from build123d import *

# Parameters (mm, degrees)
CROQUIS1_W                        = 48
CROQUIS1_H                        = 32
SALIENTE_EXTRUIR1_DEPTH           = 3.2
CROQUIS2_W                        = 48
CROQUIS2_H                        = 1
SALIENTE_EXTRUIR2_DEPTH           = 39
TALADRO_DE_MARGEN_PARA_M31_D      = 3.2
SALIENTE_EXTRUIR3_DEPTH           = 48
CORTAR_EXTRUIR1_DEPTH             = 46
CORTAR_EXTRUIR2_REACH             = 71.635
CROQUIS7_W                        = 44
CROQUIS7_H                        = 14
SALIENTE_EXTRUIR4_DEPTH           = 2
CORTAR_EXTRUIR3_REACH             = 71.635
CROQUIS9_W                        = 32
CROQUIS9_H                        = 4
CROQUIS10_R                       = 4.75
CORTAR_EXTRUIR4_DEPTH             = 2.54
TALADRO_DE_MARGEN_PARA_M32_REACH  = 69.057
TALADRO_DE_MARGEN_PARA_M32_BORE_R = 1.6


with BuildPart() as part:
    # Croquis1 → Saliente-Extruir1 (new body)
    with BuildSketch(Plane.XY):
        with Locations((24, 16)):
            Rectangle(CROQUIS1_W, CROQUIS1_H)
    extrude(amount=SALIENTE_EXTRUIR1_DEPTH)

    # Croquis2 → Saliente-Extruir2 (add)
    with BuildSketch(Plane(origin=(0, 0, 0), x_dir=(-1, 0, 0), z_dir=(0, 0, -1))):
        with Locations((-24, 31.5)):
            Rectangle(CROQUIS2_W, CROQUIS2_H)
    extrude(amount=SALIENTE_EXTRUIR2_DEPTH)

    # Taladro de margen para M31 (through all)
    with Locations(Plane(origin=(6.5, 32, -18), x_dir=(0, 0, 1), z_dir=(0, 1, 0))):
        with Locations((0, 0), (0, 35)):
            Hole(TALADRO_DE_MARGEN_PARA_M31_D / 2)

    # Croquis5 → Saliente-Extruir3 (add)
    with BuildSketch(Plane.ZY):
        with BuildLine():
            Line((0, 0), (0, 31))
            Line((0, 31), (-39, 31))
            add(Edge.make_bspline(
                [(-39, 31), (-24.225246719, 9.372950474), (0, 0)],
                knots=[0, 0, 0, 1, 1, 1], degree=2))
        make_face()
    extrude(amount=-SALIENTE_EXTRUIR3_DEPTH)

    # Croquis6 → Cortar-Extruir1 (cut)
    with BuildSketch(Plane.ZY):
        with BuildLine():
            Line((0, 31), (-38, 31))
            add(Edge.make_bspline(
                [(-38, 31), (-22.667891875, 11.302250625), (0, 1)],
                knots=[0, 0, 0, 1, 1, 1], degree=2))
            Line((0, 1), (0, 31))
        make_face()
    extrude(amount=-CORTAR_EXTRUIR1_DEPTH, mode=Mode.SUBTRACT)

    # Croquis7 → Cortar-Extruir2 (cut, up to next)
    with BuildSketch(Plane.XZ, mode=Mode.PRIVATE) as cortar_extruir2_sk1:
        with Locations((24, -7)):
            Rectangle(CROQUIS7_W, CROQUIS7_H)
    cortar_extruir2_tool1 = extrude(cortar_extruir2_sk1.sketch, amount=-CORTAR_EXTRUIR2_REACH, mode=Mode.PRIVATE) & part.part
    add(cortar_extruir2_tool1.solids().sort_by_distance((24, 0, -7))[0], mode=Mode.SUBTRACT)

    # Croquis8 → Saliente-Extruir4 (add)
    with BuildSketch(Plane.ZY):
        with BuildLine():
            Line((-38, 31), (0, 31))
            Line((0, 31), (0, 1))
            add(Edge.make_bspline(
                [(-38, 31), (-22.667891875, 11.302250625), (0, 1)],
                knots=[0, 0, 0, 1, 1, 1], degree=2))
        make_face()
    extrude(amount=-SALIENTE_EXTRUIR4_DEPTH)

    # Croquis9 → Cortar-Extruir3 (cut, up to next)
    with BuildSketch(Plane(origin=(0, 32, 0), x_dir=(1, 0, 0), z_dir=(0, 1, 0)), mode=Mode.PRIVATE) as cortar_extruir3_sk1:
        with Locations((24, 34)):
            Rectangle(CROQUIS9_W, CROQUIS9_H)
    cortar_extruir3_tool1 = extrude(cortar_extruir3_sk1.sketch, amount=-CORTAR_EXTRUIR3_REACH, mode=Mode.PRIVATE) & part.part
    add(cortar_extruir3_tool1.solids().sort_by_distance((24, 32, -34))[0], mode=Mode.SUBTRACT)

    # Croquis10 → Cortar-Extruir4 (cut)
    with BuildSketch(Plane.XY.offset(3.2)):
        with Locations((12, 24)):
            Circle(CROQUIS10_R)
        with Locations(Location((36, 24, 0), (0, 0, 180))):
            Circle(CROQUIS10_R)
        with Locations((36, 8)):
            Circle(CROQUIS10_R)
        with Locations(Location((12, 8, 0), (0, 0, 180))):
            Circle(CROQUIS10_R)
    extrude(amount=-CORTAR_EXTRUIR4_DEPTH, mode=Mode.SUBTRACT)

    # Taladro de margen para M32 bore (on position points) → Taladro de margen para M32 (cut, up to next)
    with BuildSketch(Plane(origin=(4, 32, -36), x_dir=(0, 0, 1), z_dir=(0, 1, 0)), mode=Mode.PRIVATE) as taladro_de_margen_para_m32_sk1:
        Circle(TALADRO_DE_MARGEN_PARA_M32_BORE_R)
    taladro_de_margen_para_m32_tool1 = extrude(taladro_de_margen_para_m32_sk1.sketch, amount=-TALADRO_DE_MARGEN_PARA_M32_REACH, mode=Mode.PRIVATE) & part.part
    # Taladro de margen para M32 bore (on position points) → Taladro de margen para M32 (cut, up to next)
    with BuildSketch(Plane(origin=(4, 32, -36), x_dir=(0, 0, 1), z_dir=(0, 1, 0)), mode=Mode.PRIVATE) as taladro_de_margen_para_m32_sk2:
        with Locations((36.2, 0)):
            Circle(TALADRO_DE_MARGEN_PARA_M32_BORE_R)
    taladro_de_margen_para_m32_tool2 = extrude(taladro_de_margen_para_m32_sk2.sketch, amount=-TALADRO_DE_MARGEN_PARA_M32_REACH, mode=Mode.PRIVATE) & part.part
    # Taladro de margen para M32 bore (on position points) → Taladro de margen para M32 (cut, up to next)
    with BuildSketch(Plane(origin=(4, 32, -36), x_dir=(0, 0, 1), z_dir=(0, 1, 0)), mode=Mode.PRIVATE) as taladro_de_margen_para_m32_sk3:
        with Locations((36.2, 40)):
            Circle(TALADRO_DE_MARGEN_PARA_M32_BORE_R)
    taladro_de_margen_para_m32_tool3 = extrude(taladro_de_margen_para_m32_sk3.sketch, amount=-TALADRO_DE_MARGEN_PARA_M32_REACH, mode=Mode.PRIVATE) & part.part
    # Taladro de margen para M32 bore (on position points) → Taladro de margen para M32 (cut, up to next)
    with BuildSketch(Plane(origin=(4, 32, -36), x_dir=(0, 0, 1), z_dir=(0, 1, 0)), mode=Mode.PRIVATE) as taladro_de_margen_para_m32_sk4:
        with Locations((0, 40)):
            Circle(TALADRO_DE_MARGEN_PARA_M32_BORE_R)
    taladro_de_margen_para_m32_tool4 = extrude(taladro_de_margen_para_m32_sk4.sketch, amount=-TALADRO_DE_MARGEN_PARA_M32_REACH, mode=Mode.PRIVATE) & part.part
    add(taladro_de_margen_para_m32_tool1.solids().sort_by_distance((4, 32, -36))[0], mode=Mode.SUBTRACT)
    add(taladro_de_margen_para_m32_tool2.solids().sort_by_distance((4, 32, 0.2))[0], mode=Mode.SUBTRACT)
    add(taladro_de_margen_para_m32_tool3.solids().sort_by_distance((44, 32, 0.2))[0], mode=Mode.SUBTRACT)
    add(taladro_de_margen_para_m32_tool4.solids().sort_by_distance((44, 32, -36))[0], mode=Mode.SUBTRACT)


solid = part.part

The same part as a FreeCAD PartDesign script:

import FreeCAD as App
import Part
import Sketcher
from FreeCAD import Vector


def add_polygon(sketch, points):
    """Adds a closed chain of lines whose ends are joined by coincident constraints."""
    first, n = sketch.GeometryCount, len(points)
    for a, b in zip(points, points[1:] + points[:1]):
        sketch.addGeometry(Part.LineSegment(App.Vector(*a, 0), App.Vector(*b, 0)), False)
    for i in range(n):
        sketch.addConstraint(Sketcher.Constraint("Coincident", first + i, 2, first + (i + 1) % n, 1))

doc = App.newDocument("Part")
params = doc.addObject("Spreadsheet::Sheet", "Params")
for row, (alias, value) in enumerate([
    ("sketch1_width", "48 mm"),
    ("sketch1_height", "32 mm"),
    ("pad1_length", "3.2 mm"),
    ("sketch2_width", "48 mm"),
    ("sketch2_height", "1 mm"),
    ("pad2_length", "39 mm"),
    ("sketch3_diameter", "3.2 mm"),
    ("hole_diameter", "3.2 mm"),
    ("pad3_length", "48 mm"),
    ("pocket1_length", "46 mm"),
    ("sketch6_width", "44 mm"),
    ("sketch6_height", "14 mm"),
    ("pocket2_length", "8.715684 mm"),
    ("pad4_length", "2 mm"),
    ("sketch8_width", "32 mm"),
    ("sketch8_height", "4 mm"),
    ("sketch9_diameter", "9.5 mm"),
    ("pocket4_length", "2.54 mm"),
    ("sketch10_diameter", "3.2 mm"),
    ("sketch11_diameter", "3.2 mm"),
    ("sketch12_diameter", "3.2 mm"),
    ("sketch13_diameter", "3.2 mm"),
], start=1):
    params.set(f"A{row}", alias)
    params.set(f"B{row}", "=" + value)
    params.setAlias(f"B{row}", alias)

body = doc.addObject("PartDesign::Body", "Body")

sketch1 = body.newObject("Sketcher::SketchObject", "Sketch")
sketch1.AttachmentSupport = (doc.getObject("XY_Plane"), [""])
sketch1.MapMode = "FlatFace"
add_polygon(sketch1, [(0, 32), (0, 0), (48, 0), (48, 32)])
sketch1.addConstraint(Sketcher.Constraint("Vertical", 0))
sketch1.addConstraint(Sketcher.Constraint("Horizontal", 1))
sketch1.addConstraint(Sketcher.Constraint("Vertical", 2))
sketch1.addConstraint(Sketcher.Constraint("Horizontal", 3))
sketch1.addConstraint(Sketcher.Constraint("Coincident", 0, 2, -1, 1))
sketch1.addConstraint(Sketcher.Constraint("DistanceX", 1, 1, 1, 2, 48.0))
sketch1.addConstraint(Sketcher.Constraint("DistanceY", 0, 2, 0, 1, 32.0))
sketch1.setExpression("Constraints[9]", "Params.sketch1_width")
sketch1.setExpression("Constraints[10]", "Params.sketch1_height")
pad1 = body.newObject("PartDesign::Pad", "Pad")
pad1.Profile = sketch1
pad1.setExpression("Length", "Params.pad1_length")

sketch2 = body.newObject("Sketcher::SketchObject", "Sketch001")
sketch2.AttachmentSupport = (doc.getObject("XY_Plane"), [""])
sketch2.MapMode = "FlatFace"
add_polygon(sketch2, [(48, 32), (48, 31), (0, 31), (0, 32)])
sketch2.addConstraint(Sketcher.Constraint("Vertical", 0))
sketch2.addConstraint(Sketcher.Constraint("Horizontal", 1))
sketch2.addConstraint(Sketcher.Constraint("Vertical", 2))
sketch2.addConstraint(Sketcher.Constraint("Horizontal", 3))
sketch2.addConstraint(Sketcher.Constraint("PointOnObject", 1, 2, -2))
sketch2.addConstraint(Sketcher.Constraint("DistanceX", 1, 2, 1, 1, 48.0))
sketch2.addConstraint(Sketcher.Constraint("DistanceY", 0, 2, 0, 1, 1.0))
sketch2.addConstraint(Sketcher.Constraint("DistanceY", -1, 1, 0, 2, 31.0))
sketch2.setExpression("Constraints[9]", "Params.sketch2_width")
sketch2.setExpression("Constraints[10]", "Params.sketch2_height")
pad2 = body.newObject("PartDesign::Pad", "Pad001")
pad2.Profile = sketch2
pad2.setExpression("Length", "Params.pad2_length")
pad2.Reversed = True

sketch3 = body.newObject("Sketcher::SketchObject", "Sketch002")
sketch3.AttachmentSupport = (doc.getObject("XZ_Plane"), [""])
sketch3.MapMode = "FlatFace"
sketch3.AttachmentOffset = App.Placement(Vector(0, 0, -32), App.Rotation())
sketch3.addGeometry(Part.Circle(Vector(6.5, -18, 0), Vector(0, 0, 1), 1.6), False)
sketch3.addGeometry(Part.Circle(Vector(41.5, -18, 0), Vector(0, 0, 1), 1.6), False)
sketch3.addConstraint(Sketcher.Constraint("Equal", 0, 1))
sketch3.addConstraint(Sketcher.Constraint("Horizontal", 0, 3, 1, 3))
sketch3.addConstraint(Sketcher.Constraint("Diameter", 0, 3.2))
sketch3.addConstraint(Sketcher.Constraint("DistanceY", 0, 3, -1, 1, 18.0))
sketch3.addConstraint(Sketcher.Constraint("DistanceX", 0, 3, 1, 3, 35.0))
sketch3.addConstraint(Sketcher.Constraint("DistanceX", -1, 1, 0, 3, 6.5))
sketch3.setExpression("Constraints[2]", "Params.sketch3_diameter")
doc.recompute()
hole = body.newObject("PartDesign::Hole", "Hole")
hole.Profile = sketch3
hole.ThreadType = "None"
hole.setExpression("Diameter", "Params.hole_diameter")
hole.DepthType = "ThroughAll"
hole.Reversed = True

sketch4 = body.newObject("Sketcher::SketchObject", "Sketch003")
sketch4.AttachmentSupport = (doc.getObject("YZ_Plane"), [""])
sketch4.MapMode = "FlatFace"
sketch4.addGeometry(Part.LineSegment(Vector(0, 0, 0), Vector(31, 0, 0)), False)
sketch4.addGeometry(Part.LineSegment(Vector(31, 0, 0), Vector(31, -39, 0)), False)
sketch4.addGeometry(Part.BSplineCurve([Vector(31, -39, 0), Vector(9.37295, -24.225247, 0), Vector(0, 0, 0)], [3, 3], [0, 1], False, 2, [1, 1, 1], False), False)
sketch4.addConstraint(Sketcher.Constraint("Block", 2))
sketch4.addConstraint(Sketcher.Constraint("Coincident", 0, 2, 1, 1))
sketch4.addConstraint(Sketcher.Constraint("Coincident", 1, 2, 2, 1))
sketch4.addConstraint(Sketcher.Constraint("Coincident", 2, 2, 0, 1))
sketch4.addConstraint(Sketcher.Constraint("Horizontal", 0))
sketch4.addConstraint(Sketcher.Constraint("Vertical", 1))
pad3 = body.newObject("PartDesign::Pad", "Pad002")
pad3.Profile = sketch4
pad3.setExpression("Length", "Params.pad3_length")

sketch5 = body.newObject("Sketcher::SketchObject", "Sketch004")
sketch5.AttachmentSupport = (doc.getObject("YZ_Plane"), [""])
sketch5.MapMode = "FlatFace"
sketch5.addGeometry(Part.LineSegment(Vector(31, 0, 0), Vector(31, -38, 0)), False)
sketch5.addGeometry(Part.BSplineCurve([Vector(31, -38, 0), Vector(11.302251, -22.667892, 0), Vector(1, 0, 0)], [3, 3], [0, 1], False, 2, [1, 1, 1], False), False)
sketch5.addGeometry(Part.LineSegment(Vector(1, 0, 0), Vector(31, 0, 0)), False)
sketch5.addConstraint(Sketcher.Constraint("Block", 1))
sketch5.addConstraint(Sketcher.Constraint("Coincident", 0, 2, 1, 1))
sketch5.addConstraint(Sketcher.Constraint("Coincident", 1, 2, 2, 1))
sketch5.addConstraint(Sketcher.Constraint("Coincident", 2, 2, 0, 1))
sketch5.addConstraint(Sketcher.Constraint("Vertical", 0))
sketch5.addConstraint(Sketcher.Constraint("Horizontal", 2))
pocket1 = body.newObject("PartDesign::Pocket", "Pocket")
pocket1.Profile = sketch5
pocket1.setExpression("Length", "Params.pocket1_length")
pocket1.Reversed = True

sketch6 = body.newObject("Sketcher::SketchObject", "Sketch005")
sketch6.AttachmentSupport = (doc.getObject("XZ_Plane"), [""])
sketch6.MapMode = "FlatFace"
add_polygon(sketch6, [(2, 0), (2, -14), (46, -14), (46, 0)])
sketch6.addConstraint(Sketcher.Constraint("Vertical", 0))
sketch6.addConstraint(Sketcher.Constraint("Horizontal", 1))
sketch6.addConstraint(Sketcher.Constraint("Vertical", 2))
sketch6.addConstraint(Sketcher.Constraint("Horizontal", 3))
sketch6.addConstraint(Sketcher.Constraint("PointOnObject", 2, 2, -1))
sketch6.addConstraint(Sketcher.Constraint("DistanceX", 1, 1, 1, 2, 44.0))
sketch6.addConstraint(Sketcher.Constraint("DistanceY", 0, 2, 0, 1, 14.0))
sketch6.addConstraint(Sketcher.Constraint("DistanceX", -1, 1, 0, 2, 2.0))
sketch6.setExpression("Constraints[9]", "Params.sketch6_width")
sketch6.setExpression("Constraints[10]", "Params.sketch6_height")
pocket2 = body.newObject("PartDesign::Pocket", "Pocket001")
pocket2.Profile = sketch6
pocket2.setExpression("Length", "Params.pocket2_length")

sketch7 = body.newObject("Sketcher::SketchObject", "Sketch006")
sketch7.AttachmentSupport = (doc.getObject("YZ_Plane"), [""])
sketch7.MapMode = "FlatFace"
sketch7.addGeometry(Part.LineSegment(Vector(31, 0, 0), Vector(31, -38, 0)), False)
sketch7.addGeometry(Part.BSplineCurve([Vector(31, -38, 0), Vector(11.302251, -22.667892, 0), Vector(1, 0, 0)], [3, 3], [0, 1], False, 2, [1, 1, 1], False), False)
sketch7.addGeometry(Part.LineSegment(Vector(1, 0, 0), Vector(31, 0, 0)), False)
sketch7.addConstraint(Sketcher.Constraint("Block", 1))
sketch7.addConstraint(Sketcher.Constraint("Coincident", 0, 2, 1, 1))
sketch7.addConstraint(Sketcher.Constraint("Coincident", 1, 2, 2, 1))
sketch7.addConstraint(Sketcher.Constraint("Coincident", 2, 2, 0, 1))
sketch7.addConstraint(Sketcher.Constraint("Vertical", 0))
sketch7.addConstraint(Sketcher.Constraint("Horizontal", 2))
pad4 = body.newObject("PartDesign::Pad", "Pad003")
pad4.Profile = sketch7
pad4.setExpression("Length", "Params.pad4_length")

sketch8 = body.newObject("Sketcher::SketchObject", "Sketch007")
sketch8.AttachmentSupport = (doc.getObject("XZ_Plane"), [""])
sketch8.MapMode = "FlatFace"
sketch8.AttachmentOffset = App.Placement(Vector(0, 0, -32), App.Rotation())
add_polygon(sketch8, [(8, -36), (8, -32), (40, -32), (40, -36)])
sketch8.addConstraint(Sketcher.Constraint("Vertical", 0))
sketch8.addConstraint(Sketcher.Constraint("Horizontal", 1))
sketch8.addConstraint(Sketcher.Constraint("Vertical", 2))
sketch8.addConstraint(Sketcher.Constraint("Horizontal", 3))
sketch8.addConstraint(Sketcher.Constraint("DistanceX", 1, 1, 1, 2, 32.0))
sketch8.addConstraint(Sketcher.Constraint("DistanceY", 0, 1, 0, 2, 4.0))
sketch8.addConstraint(Sketcher.Constraint("DistanceX", -1, 1, 0, 2, 8.0))
sketch8.addConstraint(Sketcher.Constraint("DistanceY", 0, 2, -1, 1, 32.0))
sketch8.setExpression("Constraints[8]", "Params.sketch8_width")
sketch8.setExpression("Constraints[9]", "Params.sketch8_height")
pocket3 = body.newObject("PartDesign::Pocket", "Pocket002")
pocket3.Profile = sketch8
pocket3.Type = "UpToFirst"
pocket3.Reversed = True

sketch9 = body.newObject("Sketcher::SketchObject", "Sketch008")
sketch9.AttachmentSupport = (doc.getObject("XY_Plane"), [""])
sketch9.MapMode = "FlatFace"
sketch9.AttachmentOffset = App.Placement(Vector(0, 0, 3.2), App.Rotation())
sketch9.addGeometry(Part.Circle(Vector(12, 24, 0), Vector(0, 0, 1), 4.8), False)
sketch9.addGeometry(Part.Circle(Vector(36, 24, 0), Vector(0, 0, 1), 4.8), False)
sketch9.addGeometry(Part.Circle(Vector(36, 8, 0), Vector(0, 0, 1), 4.8), False)
sketch9.addGeometry(Part.Circle(Vector(12, 8, 0), Vector(0, 0, 1), 4.8), False)
sketch9.addConstraint(Sketcher.Constraint("Equal", 0, 1))
sketch9.addConstraint(Sketcher.Constraint("Equal", 1, 2))
sketch9.addConstraint(Sketcher.Constraint("Equal", 2, 3))
sketch9.addConstraint(Sketcher.Constraint("Horizontal", 0, 3, 1, 3))
sketch9.addConstraint(Sketcher.Constraint("Horizontal", 2, 3, 3, 3))
sketch9.addConstraint(Sketcher.Constraint("Vertical", 1, 3, 2, 3))
sketch9.addConstraint(Sketcher.Constraint("Vertical", 0, 3, 3, 3))
sketch9.addConstraint(Sketcher.Constraint("Diameter", 0, 9.5))
sketch9.addConstraint(Sketcher.Constraint("DistanceX", -1, 1, 0, 3, 12.0))
sketch9.addConstraint(Sketcher.Constraint("DistanceY", -1, 1, 0, 3, 24.0))
sketch9.addConstraint(Sketcher.Constraint("DistanceX", -1, 1, 1, 3, 36.0))
sketch9.addConstraint(Sketcher.Constraint("DistanceY", -1, 1, 2, 3, 8.0))
sketch9.setExpression("Constraints[7]", "Params.sketch9_diameter")
pocket4 = body.newObject("PartDesign::Pocket", "Pocket003")
pocket4.Profile = sketch9
pocket4.setExpression("Length", "Params.pocket4_length")

sketch10 = body.newObject("Sketcher::SketchObject", "Sketch009")
sketch10.AttachmentSupport = (doc.getObject("XZ_Plane"), [""])
sketch10.MapMode = "FlatFace"
sketch10.AttachmentOffset = App.Placement(Vector(0, 0, -32), App.Rotation())
sketch10.addGeometry(Part.Circle(Vector(4, -36, 0), Vector(0, 0, 1), 1.6), False)
sketch10.addConstraint(Sketcher.Constraint("Diameter", 0, 3.2))
sketch10.addConstraint(Sketcher.Constraint("DistanceX", -1, 1, 0, 3, 4.0))
sketch10.addConstraint(Sketcher.Constraint("DistanceY", 0, 3, -1, 1, 36.0))
sketch10.setExpression("Constraints[0]", "Params.sketch10_diameter")
pocket5 = body.newObject("PartDesign::Pocket", "Pocket004")
pocket5.Profile = sketch10
pocket5.Type = "UpToFirst"
pocket5.Reversed = True

sketch11 = body.newObject("Sketcher::SketchObject", "Sketch010")
sketch11.AttachmentSupport = (doc.getObject("XZ_Plane"), [""])
sketch11.MapMode = "FlatFace"
sketch11.AttachmentOffset = App.Placement(Vector(0, 0, -32), App.Rotation())
sketch11.addGeometry(Part.Circle(Vector(4, 0.2, 0), Vector(0, 0, 1), 1.6), False)
sketch11.addConstraint(Sketcher.Constraint("Diameter", 0, 3.2))
sketch11.addConstraint(Sketcher.Constraint("DistanceX", -1, 1, 0, 3, 4.0))
sketch11.addConstraint(Sketcher.Constraint("DistanceY", -1, 1, 0, 3, 0.2))
sketch11.setExpression("Constraints[0]", "Params.sketch11_diameter")
pocket6 = body.newObject("PartDesign::Pocket", "Pocket005")
pocket6.Profile = sketch11
pocket6.Type = "UpToFirst"
pocket6.Reversed = True

sketch12 = body.newObject("Sketcher::SketchObject", "Sketch011")
sketch12.AttachmentSupport = (doc.getObject("XZ_Plane"), [""])
sketch12.MapMode = "FlatFace"
sketch12.AttachmentOffset = App.Placement(Vector(0, 0, -32), App.Rotation())
sketch12.addGeometry(Part.Circle(Vector(44, 0.2, 0), Vector(0, 0, 1), 1.6), False)
sketch12.addConstraint(Sketcher.Constraint("Diameter", 0, 3.2))
sketch12.addConstraint(Sketcher.Constraint("DistanceX", -1, 1, 0, 3, 44.0))
sketch12.addConstraint(Sketcher.Constraint("DistanceY", -1, 1, 0, 3, 0.2))
sketch12.setExpression("Constraints[0]", "Params.sketch12_diameter")
pocket7 = body.newObject("PartDesign::Pocket", "Pocket006")
pocket7.Profile = sketch12
pocket7.Type = "UpToFirst"
pocket7.Reversed = True

sketch13 = body.newObject("Sketcher::SketchObject", "Sketch012")
sketch13.AttachmentSupport = (doc.getObject("XZ_Plane"), [""])
sketch13.MapMode = "FlatFace"
sketch13.AttachmentOffset = App.Placement(Vector(0, 0, -32), App.Rotation())
sketch13.addGeometry(Part.Circle(Vector(44, -36, 0), Vector(0, 0, 1), 1.6), False)
sketch13.addConstraint(Sketcher.Constraint("Diameter", 0, 3.2))
sketch13.addConstraint(Sketcher.Constraint("DistanceX", -1, 1, 0, 3, 44.0))
sketch13.addConstraint(Sketcher.Constraint("DistanceY", 0, 3, -1, 1, 36.0))
sketch13.setExpression("Constraints[0]", "Params.sketch13_diameter")
pocket8 = body.newObject("PartDesign::Pocket", "Pocket007")
pocket8.Profile = sketch13
pocket8.Type = "UpToFirst"
pocket8.Reversed = True

doc.recompute()
